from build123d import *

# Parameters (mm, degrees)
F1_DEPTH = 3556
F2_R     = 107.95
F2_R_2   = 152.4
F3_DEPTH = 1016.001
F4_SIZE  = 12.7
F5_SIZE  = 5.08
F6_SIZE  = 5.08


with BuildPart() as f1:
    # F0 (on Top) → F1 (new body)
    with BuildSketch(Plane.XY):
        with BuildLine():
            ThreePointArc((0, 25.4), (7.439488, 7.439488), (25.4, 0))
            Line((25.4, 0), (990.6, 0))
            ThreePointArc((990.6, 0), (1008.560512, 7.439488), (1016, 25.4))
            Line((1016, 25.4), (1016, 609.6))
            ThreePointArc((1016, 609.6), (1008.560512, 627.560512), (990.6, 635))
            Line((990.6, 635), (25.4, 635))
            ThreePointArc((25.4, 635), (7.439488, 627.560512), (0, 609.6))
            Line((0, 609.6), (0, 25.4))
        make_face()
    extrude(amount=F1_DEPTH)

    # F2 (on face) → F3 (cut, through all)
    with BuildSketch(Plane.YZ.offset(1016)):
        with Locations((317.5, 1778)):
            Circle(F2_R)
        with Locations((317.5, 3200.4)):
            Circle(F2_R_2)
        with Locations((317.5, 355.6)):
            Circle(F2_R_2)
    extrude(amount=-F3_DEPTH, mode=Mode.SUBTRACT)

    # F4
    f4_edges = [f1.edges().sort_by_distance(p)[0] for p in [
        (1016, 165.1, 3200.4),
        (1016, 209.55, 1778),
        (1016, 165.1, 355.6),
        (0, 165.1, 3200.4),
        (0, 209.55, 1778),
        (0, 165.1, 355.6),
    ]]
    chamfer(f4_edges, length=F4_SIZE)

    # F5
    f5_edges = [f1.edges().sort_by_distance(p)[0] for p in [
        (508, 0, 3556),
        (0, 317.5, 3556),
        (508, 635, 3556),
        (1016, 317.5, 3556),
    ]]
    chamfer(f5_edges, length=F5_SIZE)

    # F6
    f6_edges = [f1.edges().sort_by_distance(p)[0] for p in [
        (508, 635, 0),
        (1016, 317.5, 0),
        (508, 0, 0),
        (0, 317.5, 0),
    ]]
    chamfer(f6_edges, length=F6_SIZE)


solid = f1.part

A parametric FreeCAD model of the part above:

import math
import FreeCAD as App
import Part
import Sketcher
Q = App.Units.Quantity


def edges_at(feature, points):
    """Names of the edges that pass closest to the given points."""
    edges = feature.Shape.Edges
    near = lambda p: min(range(len(edges)), key=lambda i: edges[i].distToShape(Part.Vertex(*p))[0])
    return sorted({f"Edge{near(p) + 1}" for p in points})

doc = App.newDocument("Part")
body = doc.addObject("PartDesign::Body", "Body")

# Sketch on XY plane
sketch1 = body.newObject("Sketcher::SketchObject", "Sketch")
sketch1.AttachmentSupport = (doc.getObject("XY_Plane"), [""])
sketch1.MapMode = "FlatFace"
sketch1.addGeometry(Part.ArcOfCircle(Part.Circle(App.Vector(25.400001, 25.400001, 0), App.Vector(0, 0, 1), 25.400001), math.radians(-179.999998), math.radians(-90.000002)), False)
sketch1.addGeometry(Part.LineSegment(App.Vector(25.4, 0, 0), App.Vector(990.6, 0, 0)), False)
sketch1.addGeometry(Part.ArcOfCircle(Part.Circle(App.Vector(990.599999, 25.400001, 0), App.Vector(0, 0, 1), 25.400001), math.radians(-89.999998), math.radians(-0.000002)), False)
sketch1.addGeometry(Part.LineSegment(App.Vector(1016, 25.4, 0), App.Vector(1016, 609.6, 0)), False)
sketch1.addGeometry(Part.ArcOfCircle(Part.Circle(App.Vector(990.599999, 609.599999, 0), App.Vector(0, 0, 1), 25.400001), math.radians(0.000002), math.radians(89.999998)), False)
sketch1.addGeometry(Part.LineSegment(App.Vector(990.6, 635, 0), App.Vector(25.4, 635, 0)), False)
sketch1.addGeometry(Part.ArcOfCircle(Part.Circle(App.Vector(25.400001, 609.599999, 0), App.Vector(0, 0, 1), 25.400001), math.radians(90.000002), math.radians(179.999998)), False)
sketch1.addGeometry(Part.LineSegment(App.Vector(0, 609.6, 0), App.Vector(0, 25.4, 0)), False)
sketch1.addConstraint(Sketcher.Constraint("Tangent", 0, 2, 1, 1))
sketch1.addConstraint(Sketcher.Constraint("Tangent", 1, 2, 2, 1))
sketch1.addConstraint(Sketcher.Constraint("Tangent", 2, 2, 3, 1))
sketch1.addConstraint(Sketcher.Constraint("Tangent", 3, 2, 4, 1))
sketch1.addConstraint(Sketcher.Constraint("Tangent", 4, 2, 5, 1))
sketch1.addConstraint(Sketcher.Constraint("Tangent", 5, 2, 6, 1))
sketch1.addConstraint(Sketcher.Constraint("Tangent", 6, 2, 7, 1))
sketch1.addConstraint(Sketcher.Constraint("Tangent", 7, 2, 0, 1))
sketch1.addConstraint(Sketcher.Constraint("Horizontal", 1))
sketch1.addConstraint(Sketcher.Constraint("Vertical", 3))
sketch1.addConstraint(Sketcher.Constraint("Horizontal", 5))
sketch1.addConstraint(Sketcher.Constraint("Vertical", 7))
sketch1.addConstraint(Sketcher.Constraint("Equal", 0, 2))
sketch1.addConstraint(Sketcher.Constraint("Equal", 2, 4))
sketch1.addConstraint(Sketcher.Constraint("Equal", 4, 6))
sketch1.addConstraint(Sketcher.Constraint("PointOnObject", 0, 2, -1))
sketch1.addConstraint(Sketcher.Constraint("PointOnObject", 6, 2, -2))
sketch1.addConstraint(Sketcher.Constraint("Radius", 0, Q("1 in")))
sketch1.addConstraint(Sketcher.Constraint("DistanceX", 1, 1, 1, 2, Q("38 in")))
sketch1.addConstraint(Sketcher.Constraint("DistanceY", 3, 1, 3, 2, Q("23 in")))
pad1 = body.newObject("PartDesign::Pad", "Pad")
pad1.Profile = sketch1
pad1.Length = Q("140 in")

# Sketch on YZ plane
sketch2 = body.newObject("Sketcher::SketchObject", "Sketch001")
sketch2.AttachmentSupport = (doc.getObject("YZ_Plane"), [""])
sketch2.MapMode = "FlatFace"
sketch2.AttachmentOffset = App.Placement(App.Vector(0, 0, 40 * 25.4), App.Rotation())
sketch2.addGeometry(Part.Circle(App.Vector(317.5, 1778, 0), App.Vector(0, 0, 1), 107.95), False)
sketch2.addGeometry(Part.Circle(App.Vector(317.5, 3200.4, 0), App.Vector(0, 0, 1), 152.4), False)
sketch2.addGeometry(Part.Circle(App.Vector(317.5, 355.6, 0), App.Vector(0, 0, 1), 152.4), False)
sketch2.addConstraint(Sketcher.Constraint("Equal", 1, 2))
sketch2.addConstraint(Sketcher.Constraint("Vertical", 0, 3, 1, 3))
sketch2.addConstraint(Sketcher.Constraint("Vertical", 1, 3, 2, 3))
sketch2.addConstraint(Sketcher.Constraint("Diameter", 1, Q("12 in")))
sketch2.addConstraint(Sketcher.Constraint("Diameter", 0, Q("8.5 in")))
sketch2.addConstraint(Sketcher.Constraint("DistanceY", -1, 1, 0, 3, Q("70 in")))
sketch2.addConstraint(Sketcher.Constraint("DistanceY", -1, 1, 1, 3, Q("126 in")))
sketch2.addConstraint(Sketcher.Constraint("DistanceY", -1, 1, 2, 3, Q("14 in")))
sketch2.addConstraint(Sketcher.Constraint("DistanceX", -1, 1, 0, 3, Q("12.5 in")))
pocket1 = body.newObject("PartDesign::Pocket", "Pocket")
pocket1.Profile = sketch2
pocket1.Type = "ThroughAll"
doc.recompute()

chamfer = body.newObject("PartDesign::Chamfer", "Chamfer")
chamfer.Base = (pocket1, edges_at(pocket1, [
    (1016, 165.1, 3200.4),
    (1016, 209.55, 1778),
    (1016, 165.1, 355.6),
    (0, 165.1, 3200.4),
    (0, 209.55, 1778),
    (0, 165.1, 355.6),
]))
chamfer.Size = Q("0.5 in")
doc.recompute()

chamfer2 = body.newObject("PartDesign::Chamfer", "Chamfer001")
chamfer2.Base = (chamfer, edges_at(chamfer, [
    (508, 0, 3556),
    (0, 317.5, 3556),
    (508, 635, 3556),
    (1016, 317.5, 3556),
]))
chamfer2.Size = Q("0.2 in")
doc.recompute()

chamfer3 = body.newObject("PartDesign::Chamfer", "Chamfer002")
chamfer3.Base = (chamfer2, edges_at(chamfer2, [
    (508, 635, 0),
    (1016, 317.5, 0),
    (508, 0, 0),
    (0, 317.5, 0),
]))
chamfer3.Size = Q("0.2 in")

doc.recompute()
